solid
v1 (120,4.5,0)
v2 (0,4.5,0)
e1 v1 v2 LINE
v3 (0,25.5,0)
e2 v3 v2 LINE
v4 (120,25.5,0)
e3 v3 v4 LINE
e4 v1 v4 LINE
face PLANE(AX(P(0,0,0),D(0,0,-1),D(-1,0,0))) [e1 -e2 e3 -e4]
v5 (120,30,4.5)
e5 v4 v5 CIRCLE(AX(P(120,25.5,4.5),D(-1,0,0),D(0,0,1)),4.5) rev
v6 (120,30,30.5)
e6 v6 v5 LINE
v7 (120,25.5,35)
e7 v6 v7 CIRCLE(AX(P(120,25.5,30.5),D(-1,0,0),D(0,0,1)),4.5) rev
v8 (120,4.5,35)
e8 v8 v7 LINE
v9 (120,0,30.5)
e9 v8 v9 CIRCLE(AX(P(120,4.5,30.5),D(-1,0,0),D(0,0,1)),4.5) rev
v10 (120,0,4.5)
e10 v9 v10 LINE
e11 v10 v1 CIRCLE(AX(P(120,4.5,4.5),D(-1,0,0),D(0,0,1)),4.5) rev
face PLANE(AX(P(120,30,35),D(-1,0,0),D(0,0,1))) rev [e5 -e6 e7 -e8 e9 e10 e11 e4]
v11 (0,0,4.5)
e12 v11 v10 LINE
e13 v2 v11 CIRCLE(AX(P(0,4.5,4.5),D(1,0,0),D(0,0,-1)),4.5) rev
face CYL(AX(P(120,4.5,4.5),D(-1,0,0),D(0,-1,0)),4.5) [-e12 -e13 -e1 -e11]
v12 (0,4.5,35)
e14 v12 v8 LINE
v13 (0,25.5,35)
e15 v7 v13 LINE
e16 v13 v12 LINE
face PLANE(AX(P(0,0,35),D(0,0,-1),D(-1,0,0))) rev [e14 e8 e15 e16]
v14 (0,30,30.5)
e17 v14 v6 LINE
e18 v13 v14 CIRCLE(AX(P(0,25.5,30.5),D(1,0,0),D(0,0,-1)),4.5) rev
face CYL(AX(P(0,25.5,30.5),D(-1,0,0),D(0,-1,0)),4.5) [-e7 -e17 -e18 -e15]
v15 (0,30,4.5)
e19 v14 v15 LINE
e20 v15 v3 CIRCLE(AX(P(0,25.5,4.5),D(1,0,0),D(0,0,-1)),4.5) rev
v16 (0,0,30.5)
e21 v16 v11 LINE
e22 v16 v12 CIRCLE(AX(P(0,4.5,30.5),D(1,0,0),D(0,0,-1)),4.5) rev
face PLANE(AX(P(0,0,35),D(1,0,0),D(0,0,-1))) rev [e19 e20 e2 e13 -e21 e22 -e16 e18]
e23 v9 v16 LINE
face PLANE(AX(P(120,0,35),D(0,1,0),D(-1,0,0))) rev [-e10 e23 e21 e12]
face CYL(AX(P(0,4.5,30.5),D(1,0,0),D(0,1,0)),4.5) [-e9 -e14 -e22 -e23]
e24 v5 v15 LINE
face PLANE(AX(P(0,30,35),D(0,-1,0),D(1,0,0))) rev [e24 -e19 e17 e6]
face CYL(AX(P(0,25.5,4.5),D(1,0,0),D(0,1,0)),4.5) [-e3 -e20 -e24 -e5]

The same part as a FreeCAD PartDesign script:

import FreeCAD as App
import Part
import Sketcher


def edges_at(feature, points):
    """Names of the edges that pass closest to the given points."""
    edges = feature.Shape.Edges
    near = lambda p: min(range(len(edges)), key=lambda i: edges[i].distToShape(Part.Vertex(*p))[0])
    return sorted({f"Edge{near(p) + 1}" for p in points})

doc = App.newDocument("Part")
params = doc.addObject("Spreadsheet::Sheet", "Params")
for row, (alias, value) in enumerate([
    ("sketch1_width", "120 mm"),
    ("sketch1_height", "30 mm"),
    ("pad1_length", "35 mm"),
    ("fillet_radius", "4.5 mm"),
], start=1):
    params.set(f"A{row}", alias)
    params.set(f"B{row}", "=" + value)
    params.setAlias(f"B{row}", alias)

body = doc.addObject("PartDesign::Body", "Body")

sketch1 = body.newObject("Sketcher::SketchObject", "Sketch")
sketch1.AttachmentSupport = (doc.getObject("XY_Plane"), [""])
sketch1.MapMode = "FlatFace"
sketch1.addGeometry(Part.LineSegment(App.Vector(0, 30, 0), App.Vector(0, 0, 0)), False)
sketch1.addGeometry(Part.LineSegment(App.Vector(0, 0, 0), App.Vector(120, 0, 0)), False)
sketch1.addGeometry(Part.LineSegment(App.Vector(120, 0, 0), App.Vector(120, 30, 0)), False)
sketch1.addGeometry(Part.LineSegment(App.Vector(120, 30, 0), App.Vector(0, 30, 0)), False)
sketch1.addConstraint(Sketcher.Constraint("Coincident", 0, 2, 1, 1))
sketch1.addConstraint(Sketcher.Constraint("Coincident", 1, 2, 2, 1))
sketch1.addConstraint(Sketcher.Constraint("Coincident", 2, 2, 3, 1))
sketch1.addConstraint(Sketcher.Constraint("Coincident", 3, 2, 0, 1))
sketch1.addConstraint(Sketcher.Constraint("Vertical", 0))
sketch1.addConstraint(Sketcher.Constraint("Horizontal", 1))
sketch1.addConstraint(Sketcher.Constraint("Vertical", 2))
sketch1.addConstraint(Sketcher.Constraint("Horizontal", 3))
sketch1.addConstraint(Sketcher.Constraint("Coincident", 0, 2, -1, 1))
sketch1.addConstraint(Sketcher.Constraint("DistanceX", 1, 1, 1, 2, 120.0))
sketch1.addConstraint(Sketcher.Constraint("DistanceY", 0, 2, 0, 1, 30.0))
sketch1.setExpression("Constraints[9]", "Params.sketch1_width")
sketch1.setExpression("Constraints[10]", "Params.sketch1_height")
pad1 = body.newObject("PartDesign::Pad", "Pad")
pad1.Profile = sketch1
pad1.setExpression("Length", "Params.pad1_length")
doc.recompute()

fillet = body.newObject("PartDesign::Fillet", "Fillet")
fillet.Base = (pad1, edges_at(pad1, [
    (60, 30, 35),
    (60, 0, 35),
    (60, 30, 0),
    (60, 0, 0),
]))
fillet.setExpression("Radius", "Params.fillet_radius")

doc.recompute()
